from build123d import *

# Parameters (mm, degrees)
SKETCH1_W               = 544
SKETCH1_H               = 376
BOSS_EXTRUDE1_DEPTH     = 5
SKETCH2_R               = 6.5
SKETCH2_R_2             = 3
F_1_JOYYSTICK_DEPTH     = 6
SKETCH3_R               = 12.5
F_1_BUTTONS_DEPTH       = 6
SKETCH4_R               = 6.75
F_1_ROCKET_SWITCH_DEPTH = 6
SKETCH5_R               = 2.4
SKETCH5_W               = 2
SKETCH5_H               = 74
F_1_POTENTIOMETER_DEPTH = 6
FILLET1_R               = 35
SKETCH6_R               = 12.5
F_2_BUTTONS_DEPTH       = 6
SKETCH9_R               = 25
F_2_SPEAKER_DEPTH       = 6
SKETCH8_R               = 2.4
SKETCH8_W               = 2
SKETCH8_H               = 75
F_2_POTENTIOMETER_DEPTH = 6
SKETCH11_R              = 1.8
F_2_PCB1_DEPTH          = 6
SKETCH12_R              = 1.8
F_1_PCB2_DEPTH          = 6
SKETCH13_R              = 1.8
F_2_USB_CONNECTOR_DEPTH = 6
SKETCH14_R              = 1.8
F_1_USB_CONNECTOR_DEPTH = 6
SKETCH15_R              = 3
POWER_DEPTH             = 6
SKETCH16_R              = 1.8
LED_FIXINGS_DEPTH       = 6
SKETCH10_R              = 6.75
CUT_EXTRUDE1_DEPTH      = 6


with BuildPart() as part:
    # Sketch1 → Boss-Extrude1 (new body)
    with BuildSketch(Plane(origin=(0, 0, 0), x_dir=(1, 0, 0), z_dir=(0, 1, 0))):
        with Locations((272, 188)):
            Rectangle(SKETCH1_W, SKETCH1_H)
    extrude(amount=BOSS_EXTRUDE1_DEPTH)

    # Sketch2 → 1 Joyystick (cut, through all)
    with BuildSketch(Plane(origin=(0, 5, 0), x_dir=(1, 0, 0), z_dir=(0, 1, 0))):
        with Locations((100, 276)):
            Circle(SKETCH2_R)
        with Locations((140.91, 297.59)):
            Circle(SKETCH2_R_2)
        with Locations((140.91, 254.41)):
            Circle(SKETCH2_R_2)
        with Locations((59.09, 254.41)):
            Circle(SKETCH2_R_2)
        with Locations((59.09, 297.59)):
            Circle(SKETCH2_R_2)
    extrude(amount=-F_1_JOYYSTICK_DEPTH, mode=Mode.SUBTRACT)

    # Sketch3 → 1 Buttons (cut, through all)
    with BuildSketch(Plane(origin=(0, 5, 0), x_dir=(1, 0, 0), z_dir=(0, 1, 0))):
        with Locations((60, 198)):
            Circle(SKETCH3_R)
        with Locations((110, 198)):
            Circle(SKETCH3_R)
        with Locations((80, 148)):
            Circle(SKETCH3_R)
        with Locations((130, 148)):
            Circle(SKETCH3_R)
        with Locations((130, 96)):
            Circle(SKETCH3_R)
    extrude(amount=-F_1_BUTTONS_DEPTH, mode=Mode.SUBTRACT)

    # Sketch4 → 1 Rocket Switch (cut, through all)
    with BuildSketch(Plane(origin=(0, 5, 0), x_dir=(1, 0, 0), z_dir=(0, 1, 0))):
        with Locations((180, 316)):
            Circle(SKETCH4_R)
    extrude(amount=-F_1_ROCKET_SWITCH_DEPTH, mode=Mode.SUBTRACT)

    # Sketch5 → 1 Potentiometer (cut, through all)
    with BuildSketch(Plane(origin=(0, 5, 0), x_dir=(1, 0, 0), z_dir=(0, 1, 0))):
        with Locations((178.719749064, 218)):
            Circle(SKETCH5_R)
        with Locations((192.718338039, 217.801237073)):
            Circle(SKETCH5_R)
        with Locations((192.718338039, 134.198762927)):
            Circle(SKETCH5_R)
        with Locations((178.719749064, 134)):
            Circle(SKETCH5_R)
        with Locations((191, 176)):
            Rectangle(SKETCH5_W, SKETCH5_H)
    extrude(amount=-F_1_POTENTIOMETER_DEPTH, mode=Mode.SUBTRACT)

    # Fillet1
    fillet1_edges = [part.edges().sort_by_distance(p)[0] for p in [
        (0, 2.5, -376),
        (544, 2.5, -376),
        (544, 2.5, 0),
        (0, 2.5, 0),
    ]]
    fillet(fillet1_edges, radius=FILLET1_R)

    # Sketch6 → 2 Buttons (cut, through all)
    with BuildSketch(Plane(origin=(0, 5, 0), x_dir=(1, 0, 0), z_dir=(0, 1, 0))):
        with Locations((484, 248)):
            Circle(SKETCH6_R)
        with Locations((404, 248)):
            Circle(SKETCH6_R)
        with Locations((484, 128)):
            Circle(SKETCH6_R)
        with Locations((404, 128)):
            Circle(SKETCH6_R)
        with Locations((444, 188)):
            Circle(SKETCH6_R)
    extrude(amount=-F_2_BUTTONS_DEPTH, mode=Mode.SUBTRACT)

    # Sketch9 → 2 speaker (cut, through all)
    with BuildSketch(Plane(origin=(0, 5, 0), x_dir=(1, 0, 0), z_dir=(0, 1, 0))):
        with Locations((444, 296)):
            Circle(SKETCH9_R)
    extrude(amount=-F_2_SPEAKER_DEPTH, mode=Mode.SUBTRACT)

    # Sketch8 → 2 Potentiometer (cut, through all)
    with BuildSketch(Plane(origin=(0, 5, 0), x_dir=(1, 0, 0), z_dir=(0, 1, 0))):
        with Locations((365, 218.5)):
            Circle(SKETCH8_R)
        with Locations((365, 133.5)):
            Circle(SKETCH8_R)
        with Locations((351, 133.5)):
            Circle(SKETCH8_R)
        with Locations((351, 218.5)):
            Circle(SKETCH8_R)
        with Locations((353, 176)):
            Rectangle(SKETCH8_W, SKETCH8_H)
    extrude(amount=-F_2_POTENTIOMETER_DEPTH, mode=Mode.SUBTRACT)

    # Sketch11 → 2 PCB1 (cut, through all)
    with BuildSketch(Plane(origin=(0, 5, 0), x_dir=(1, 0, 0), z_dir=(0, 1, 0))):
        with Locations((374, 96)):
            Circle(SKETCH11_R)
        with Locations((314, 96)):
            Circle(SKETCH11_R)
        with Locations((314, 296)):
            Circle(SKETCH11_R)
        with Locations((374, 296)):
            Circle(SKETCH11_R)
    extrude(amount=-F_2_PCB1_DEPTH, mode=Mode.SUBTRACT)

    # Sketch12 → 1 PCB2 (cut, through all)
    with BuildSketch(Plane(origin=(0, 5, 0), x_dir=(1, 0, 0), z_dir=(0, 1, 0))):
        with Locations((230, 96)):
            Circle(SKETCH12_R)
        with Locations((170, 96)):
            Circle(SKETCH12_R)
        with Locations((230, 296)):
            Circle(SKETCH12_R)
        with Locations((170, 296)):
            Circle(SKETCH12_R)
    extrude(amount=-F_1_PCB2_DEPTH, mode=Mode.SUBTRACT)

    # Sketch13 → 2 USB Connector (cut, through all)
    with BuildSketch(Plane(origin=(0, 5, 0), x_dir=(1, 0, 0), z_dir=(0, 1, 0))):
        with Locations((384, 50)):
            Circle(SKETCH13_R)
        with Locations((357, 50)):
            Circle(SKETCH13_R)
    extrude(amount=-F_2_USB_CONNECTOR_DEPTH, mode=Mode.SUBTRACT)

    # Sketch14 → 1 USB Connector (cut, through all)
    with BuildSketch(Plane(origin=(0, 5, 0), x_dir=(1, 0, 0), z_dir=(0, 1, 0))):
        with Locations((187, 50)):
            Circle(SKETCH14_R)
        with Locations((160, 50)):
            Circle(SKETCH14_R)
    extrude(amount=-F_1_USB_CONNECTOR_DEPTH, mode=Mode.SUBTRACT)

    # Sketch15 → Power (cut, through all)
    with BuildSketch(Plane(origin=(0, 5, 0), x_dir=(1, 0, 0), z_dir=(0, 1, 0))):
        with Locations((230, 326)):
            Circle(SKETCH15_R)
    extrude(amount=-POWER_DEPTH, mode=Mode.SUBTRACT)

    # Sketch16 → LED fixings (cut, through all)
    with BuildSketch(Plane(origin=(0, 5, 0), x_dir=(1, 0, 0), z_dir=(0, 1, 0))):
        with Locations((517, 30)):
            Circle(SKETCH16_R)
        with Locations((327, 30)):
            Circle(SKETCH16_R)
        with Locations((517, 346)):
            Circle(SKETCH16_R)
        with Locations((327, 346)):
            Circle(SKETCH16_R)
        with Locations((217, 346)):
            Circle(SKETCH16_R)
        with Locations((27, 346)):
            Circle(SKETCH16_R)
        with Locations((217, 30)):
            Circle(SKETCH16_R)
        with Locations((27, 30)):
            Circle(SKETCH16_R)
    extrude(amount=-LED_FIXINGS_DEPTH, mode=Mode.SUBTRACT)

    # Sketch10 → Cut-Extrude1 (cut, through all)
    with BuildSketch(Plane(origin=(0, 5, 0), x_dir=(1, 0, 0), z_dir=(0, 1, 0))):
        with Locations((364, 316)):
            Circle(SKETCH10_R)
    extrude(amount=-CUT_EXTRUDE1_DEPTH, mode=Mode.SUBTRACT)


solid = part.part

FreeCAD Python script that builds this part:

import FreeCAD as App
import Part
import Sketcher

V = App.Vector
Q = App.Units.Quantity


def edges_at(feature, points):
    """Names of the edges that pass closest to the given points."""
    edges = feature.Shape.Edges
    near = lambda p: min(range(len(edges)), key=lambda i: edges[i].distToShape(Part.Vertex(*p))[0])
    return sorted({f"Edge{near(p) + 1}" for p in points})


def add_polygon(sketch, points):
    """Adds a closed chain of lines whose ends are joined by coincident constraints."""
    first, n = sketch.GeometryCount, len(points)
    for a, b in zip(points, points[1:] + points[:1]):
        sketch.addGeometry(Part.LineSegment(App.Vector(*a, 0), App.Vector(*b, 0)), False)
    for i in range(n):
        sketch.addConstraint(Sketcher.Constraint("Coincident", first + i, 2, first + (i + 1) % n, 1))

doc = App.newDocument("Part")
body = doc.addObject("PartDesign::Body", "Body")

sketch1 = body.newObject("Sketcher::SketchObject", "Sketch")
sketch1.AttachmentSupport = (doc.getObject("XZ_Plane"), [""])
sketch1.MapMode = "FlatFace"
add_polygon(sketch1, [(0, -376), (0, 0), (544, 0), (544, -376)])
sketch1.addConstraint([
    Sketcher.Constraint("Vertical", 0),
    Sketcher.Constraint("Horizontal", 1),
    Sketcher.Constraint("Vertical", 2),
    Sketcher.Constraint("Horizontal", 3),
    Sketcher.Constraint("Coincident", 0, 2, -1, 1),
    Sketcher.Constraint("DistanceX", 1, 1, 1, 2, Q("544 mm")),
    Sketcher.Constraint("DistanceY", 0, 1, 0, 2, Q("376 mm")),
])
pad1 = body.newObject("PartDesign::Pad", "Pad")
pad1.Profile = sketch1
pad1.Length = 5
pad1.Reversed = True

sketch2 = body.newObject("Sketcher::SketchObject", "Sketch001")
sketch2.AttachmentSupport = (doc.getObject("XZ_Plane"), [""])
sketch2.MapMode = "FlatFace"
sketch2.AttachmentOffset = App.Placement(V(0, 0, -5), App.Rotation())
sketch2.addGeometry([
    Part.Circle(V(100, -276, 0), V(0, 0, 1), 6.5),
    Part.Circle(V(140.9, -297.6, 0), V(0, 0, 1), 3),
    Part.Circle(V(140.9, -254.4, 0), V(0, 0, 1), 3),
    Part.Circle(V(59.1, -254.4, 0), V(0, 0, 1), 3),
    Part.Circle(V(59.1, -297.6, 0), V(0, 0, 1), 3),
], False)
sketch2.addConstraint([
    Sketcher.Constraint("Equal", 1, 2),
    Sketcher.Constraint("Equal", 2, 3),
    Sketcher.Constraint("Equal", 3, 4),
    Sketcher.Constraint("Horizontal", 2, 3, 3, 3),
    Sketcher.Constraint("Horizontal", 1, 3, 4, 3),
    Sketcher.Constraint("Vertical", 1, 3, 2, 3),
    Sketcher.Constraint("Vertical", 3, 3, 4, 3),
    Sketcher.Constraint("Diameter", 0, Q("13 mm")),
    Sketcher.Constraint("Diameter", 1, Q("6 mm")),
    Sketcher.Constraint("DistanceX", -1, 1, 0, 3, Q("100 mm")),
    Sketcher.Constraint("DistanceY", 0, 3, -1, 1, Q("276 mm")),
    Sketcher.Constraint("DistanceX", -1, 1, 1, 3, Q("140.91 mm")),
    Sketcher.Constraint("DistanceY", 1, 3, -1, 1, Q("297.59 mm")),
    Sketcher.Constraint("DistanceY", 2, 3, -1, 1, Q("254.41 mm")),
    Sketcher.Constraint("DistanceX", -1, 1, 3, 3, Q("59.09 mm")),
])
pocket1 = body.newObject("PartDesign::Pocket", "Pocket")
pocket1.Profile = sketch2
pocket1.Type = "ThroughAll"
pocket1.Reversed = True

sketch3 = body.newObject("Sketcher::SketchObject", "Sketch002")
sketch3.AttachmentSupport = (doc.getObject("XZ_Plane"), [""])
sketch3.MapMode = "FlatFace"
sketch3.AttachmentOffset = App.Placement(V(0, 0, -5), App.Rotation())
sketch3.addGeometry([
    Part.Circle(V(60, -198, 0), V(0, 0, 1), 12),
    Part.Circle(V(110, -198, 0), V(0, 0, 1), 12),
    Part.Circle(V(80, -148, 0), V(0, 0, 1), 12),
    Part.Circle(V(130, -148, 0), V(0, 0, 1), 12),
    Part.Circle(V(130, -96, 0), V(0, 0, 1), 12),
], False)
sketch3.addConstraint([
    Sketcher.Constraint("Equal", 0, 1),
    Sketcher.Constraint("Equal", 1, 2),
    Sketcher.Constraint("Equal", 2, 3),
    Sketcher.Constraint("Equal", 3, 4),
    Sketcher.Constraint("Horizontal", 0, 3, 1, 3),
    Sketcher.Constraint("Horizontal", 2, 3, 3, 3),
    Sketcher.Constraint("Vertical", 3, 3, 4, 3),
    Sketcher.Constraint("Diameter", 0, Q("25 mm")),
    Sketcher.Constraint("DistanceX", -1, 1, 0, 3, Q("60 mm")),
    Sketcher.Constraint("DistanceY", 0, 3, -1, 1, Q("198 mm")),
    Sketcher.Constraint("DistanceX", -1, 1, 1, 3, Q("110 mm")),
    Sketcher.Constraint("DistanceX", -1, 1, 2, 3, Q("80 mm")),
    Sketcher.Constraint("DistanceY", 2, 3, -1, 1, Q("148 mm")),
    Sketcher.Constraint("DistanceX", -1, 1, 3, 3, Q("130 mm")),
    Sketcher.Constraint("DistanceY", 4, 3, -1, 1, Q("96 mm")),
])
pocket2 = body.newObject("PartDesign::Pocket", "Pocket001")
pocket2.Profile = sketch3
pocket2.Type = "ThroughAll"
pocket2.Reversed = True

sketch4 = body.newObject("Sketcher::SketchObject", "Sketch003")
sketch4.AttachmentSupport = (doc.getObject("XZ_Plane"), [""])
sketch4.MapMode = "FlatFace"
sketch4.AttachmentOffset = App.Placement(V(0, 0, -5), App.Rotation())
sketch4.addGeometry(Part.Circle(V(180, -316, 0), V(0, 0, 1), 7), False)
sketch4.addConstraint([
    Sketcher.Constraint("Diameter", 0, Q("13.5 mm")),
    Sketcher.Constraint("DistanceX", -1, 1, 0, 3, Q("180 mm")),
    Sketcher.Constraint("DistanceY", 0, 3, -1, 1, Q("316 mm")),
])
pocket3 = body.newObject("PartDesign::Pocket", "Pocket002")
pocket3.Profile = sketch4
pocket3.Type = "ThroughAll"
pocket3.Reversed = True

sketch5 = body.newObject("Sketcher::SketchObject", "Sketch004")
sketch5.AttachmentSupport = (doc.getObject("XZ_Plane"), [""])
sketch5.MapMode = "FlatFace"
sketch5.AttachmentOffset = App.Placement(V(0, 0, -5), App.Rotation())
sketch5.addGeometry(Part.Circle(V(178.7, -218, 0), V(0, 0, 1), 2.4), False)
sketch5.addGeometry(Part.Circle(V(192.7, -217.8, 0), V(0, 0, 1), 2.4), False)
sketch5.addGeometry(Part.Circle(V(192.7, -134.2, 0), V(0, 0, 1), 2.4), False)
sketch5.addGeometry(Part.Circle(V(178.7, -134, 0), V(0, 0, 1), 2.4), False)
add_polygon(sketch5, [(190, -213), (190, -139), (192, -139), (192, -213)])
sketch5.addConstraint([
    Sketcher.Constraint("Vertical", 4),
    Sketcher.Constraint("Horizontal", 5),
    Sketcher.Constraint("Vertical", 6),
    Sketcher.Constraint("Horizontal", 7),
    Sketcher.Constraint("Equal", 0, 1),
    Sketcher.Constraint("Equal", 1, 2),
    Sketcher.Constraint("Equal", 2, 3),
    Sketcher.Constraint("Vertical", 1, 3, 2, 3),
    Sketcher.Constraint("Vertical", 0, 3, 3, 3),
    Sketcher.Constraint("Diameter", 0, Q("4.8 mm")),
    Sketcher.Constraint("DistanceX", 5, 1, 5, 2, Q("2 mm")),
    Sketcher.Constraint("DistanceY", 4, 1, 4, 2, Q("74 mm")),
    Sketcher.Constraint("DistanceY", 0, 3, -1, 1, Q("218 mm")),
    Sketcher.Constraint("DistanceY", 3, 3, -1, 1, Q("134 mm")),
    Sketcher.Constraint("DistanceX", -1, 1, 4, 2, Q("190 mm")),
    Sketcher.Constraint("DistanceY", 4, 2, -1, 1, Q("139 mm")),
    Sketcher.Constraint("DistanceX", -1, 1, 0, 3, Q("178.719749 mm")),
    Sketcher.Constraint("DistanceX", -1, 1, 1, 3, Q("192.718338 mm")),
    Sketcher.Constraint("DistanceY", 1, 3, -1, 1, Q("217.801237 mm")),
    Sketcher.Constraint("DistanceY", 2, 3, -1, 1, Q("134.198763 mm")),
])
pocket4 = body.newObject("PartDesign::Pocket", "Pocket003")
pocket4.Profile = sketch5
pocket4.Type = "ThroughAll"
pocket4.Reversed = True
doc.recompute()

fillet = body.newObject("PartDesign::Fillet", "Fillet")
fillet.Base = (pocket4, edges_at(pocket4, [
    (0, 2.5, -376),
    (544, 2.5, -376),
    (544, 2.5, 0),
    (0, 2.5, 0),
]))
fillet.Radius = 35

sketch6 = body.newObject("Sketcher::SketchObject", "Sketch005")
sketch6.AttachmentSupport = (doc.getObject("XZ_Plane"), [""])
sketch6.MapMode = "FlatFace"
sketch6.AttachmentOffset = App.Placement(V(0, 0, -5), App.Rotation())
sketch6.addGeometry([
    Part.Circle(V(484, -248, 0), V(0, 0, 1), 12),
    Part.Circle(V(404, -248, 0), V(0, 0, 1), 12),
    Part.Circle(V(484, -128, 0), V(0, 0, 1), 12),
    Part.Circle(V(404, -128, 0), V(0, 0, 1), 12),
    Part.Circle(V(444, -188, 0), V(0, 0, 1), 12),
], False)
sketch6.addConstraint([
    Sketcher.Constraint("Equal", 0, 1),
    Sketcher.Constraint("Equal", 1, 2),
    Sketcher.Constraint("Equal", 2, 3),
    Sketcher.Constraint("Equal", 3, 4),
    Sketcher.Constraint("Horizontal", 0, 3, 1, 3),
    Sketcher.Constraint("Horizontal", 2, 3, 3, 3),
    Sketcher.Constraint("Vertical", 0, 3, 2, 3),
    Sketcher.Constraint("Vertical", 1, 3, 3, 3),
    Sketcher.Constraint("Diameter", 0, Q("25 mm")),
    Sketcher.Constraint("DistanceX", -1, 1, 0, 3, Q("484 mm")),
    Sketcher.Constraint("DistanceY", 0, 3, -1, 1, Q("248 mm")),
    Sketcher.Constraint("DistanceX", -1, 1, 1, 3, Q("404 mm")),
    Sketcher.Constraint("DistanceY", 2, 3, -1, 1, Q("128 mm")),
    Sketcher.Constraint("DistanceX", -1, 1, 4, 3, Q("444 mm")),
    Sketcher.Constraint("DistanceY", 4, 3, -1, 1, Q("188 mm")),
])
pocket5 = body.newObject("PartDesign::Pocket", "Pocket004")
pocket5.Profile = sketch6
pocket5.Type = "ThroughAll"
pocket5.Reversed = True

sketch7 = body.newObject("Sketcher::SketchObject", "Sketch006")
sketch7.AttachmentSupport = (doc.getObject("XZ_Plane"), [""])
sketch7.MapMode = "FlatFace"
sketch7.AttachmentOffset = App.Placement(V(0, 0, -5), App.Rotation())
sketch7.addGeometry(Part.Circle(V(444, -296, 0), V(0, 0, 1), 25), False)
sketch7.addConstraint([
    Sketcher.Constraint("Diameter", 0, Q("50 mm")),
    Sketcher.Constraint("DistanceX", -1, 1, 0, 3, Q("444 mm")),
    Sketcher.Constraint("DistanceY", 0, 3, -1, 1, Q("296 mm")),
])
pocket6 = body.newObject("PartDesign::Pocket", "Pocket005")
pocket6.Profile = sketch7
pocket6.Type = "ThroughAll"
pocket6.Reversed = True

sketch8 = body.newObject("Sketcher::SketchObject", "Sketch007")
sketch8.AttachmentSupport = (doc.getObject("XZ_Plane"), [""])
sketch8.MapMode = "FlatFace"
sketch8.AttachmentOffset = App.Placement(V(0, 0, -5), App.Rotation())
sketch8.addGeometry(Part.Circle(V(365, -218.5, 0), V(0, 0, 1), 2.4), False)
sketch8.addGeometry(Part.Circle(V(365, -133.5, 0), V(0, 0, 1), 2.4), False)
sketch8.addGeometry(Part.Circle(V(351, -133.5, 0), V(0, 0, 1), 2.4), False)
sketch8.addGeometry(Part.Circle(V(351, -218.5, 0), V(0, 0, 1), 2.4), False)
add_polygon(sketch8, [(352, -213.5), (352, -138.5), (354, -138.5), (354, -213.5)])
sketch8.addConstraint([
    Sketcher.Constraint("Vertical", 4),
    Sketcher.Constraint("Horizontal", 5),
    Sketcher.Constraint("Vertical", 6),
    Sketcher.Constraint("Horizontal", 7),
    Sketcher.Constraint("Equal", 0, 1),
    Sketcher.Constraint("Equal", 1, 2),
    Sketcher.Constraint("Equal", 2, 3),
    Sketcher.Constraint("Horizontal", 1, 3, 2, 3),
    Sketcher.Constraint("Horizontal", 0, 3, 3, 3),
    Sketcher.Constraint("Vertical", 0, 3, 1, 3),
    Sketcher.Constraint("Vertical", 2, 3, 3, 3),
    Sketcher.Constraint("Diameter", 0, Q("4.8 mm")),
    Sketcher.Constraint("DistanceX", 5, 1, 5, 2, Q("2 mm")),
    Sketcher.Constraint("DistanceY", 4, 1, 4, 2, Q("75 mm")),
    Sketcher.Constraint("DistanceX", -1, 1, 0, 3, Q("365 mm")),
    Sketcher.Constraint("DistanceX", -1, 1, 2, 3, Q("351 mm")),
    Sketcher.Constraint("DistanceX", -1, 1, 4, 2, Q("352 mm")),
    Sketcher.Constraint("DistanceY", 0, 3, 1, 3, Q("85 mm")),
    Sketcher.Constraint("DistanceY", 4, 2, 2, 3, Q("5 mm")),
    Sketcher.Constraint("DistanceY", 0, 3, -1, 1, Q("218.5 mm")),
])
pocket7 = body.newObject("PartDesign::Pocket", "Pocket006")
pocket7.Profile = sketch8
pocket7.Type = "ThroughAll"
pocket7.Reversed = True

sketch9 = body.newObject("Sketcher::SketchObject", "Sketch008")
sketch9.AttachmentSupport = (doc.getObject("XZ_Plane"), [""])
sketch9.MapMode = "FlatFace"
sketch9.AttachmentOffset = App.Placement(V(0, 0, -5), App.Rotation())
sketch9.addGeometry([
    Part.Circle(V(374, -96, 0), V(0, 0, 1), 1.8),
    Part.Circle(V(314, -96, 0), V(0, 0, 1), 1.8),
    Part.Circle(V(314, -296, 0), V(0, 0, 1), 1.8),
    Part.Circle(V(374, -296, 0), V(0, 0, 1), 1.8),
], False)
sketch9.addConstraint([
    Sketcher.Constraint("Equal", 0, 1),
    Sketcher.Constraint("Equal", 1, 2),
    Sketcher.Constraint("Equal", 2, 3),
    Sketcher.Constraint("Horizontal", 0, 3, 1, 3),
    Sketcher.Constraint("Horizontal", 2, 3, 3, 3),
    Sketcher.Constraint("Vertical", 1, 3, 2, 3),
    Sketcher.Constraint("Vertical", 0, 3, 3, 3),
    Sketcher.Constraint("Diameter", 0, Q("3.6 mm")),
    Sketcher.Constraint("DistanceX", -1, 1, 0, 3, Q("374 mm")),
    Sketcher.Constraint("DistanceY", 0, 3, -1, 1, Q("96 mm")),
    Sketcher.Constraint("DistanceX", -1, 1, 1, 3, Q("314 mm")),
    Sketcher.Constraint("DistanceY", 2, 3, -1, 1, Q("296 mm")),
])
pocket8 = body.newObject("PartDesign::Pocket", "Pocket007")
pocket8.Profile = sketch9
pocket8.Type = "ThroughAll"
pocket8.Reversed = True

sketch10 = body.newObject("Sketcher::SketchObject", "Sketch009")
sketch10.AttachmentSupport = (doc.getObject("XZ_Plane"), [""])
sketch10.MapMode = "FlatFace"
sketch10.AttachmentOffset = App.Placement(V(0, 0, -5), App.Rotation())
sketch10.addGeometry([
    Part.Circle(V(230, -96, 0), V(0, 0, 1), 1.8),
    Part.Circle(V(170, -96, 0), V(0, 0, 1), 1.8),
    Part.Circle(V(230, -296, 0), V(0, 0, 1), 1.8),
    Part.Circle(V(170, -296, 0), V(0, 0, 1), 1.8),
], False)
sketch10.addConstraint([
    Sketcher.Constraint("Equal", 0, 1),
    Sketcher.Constraint("Equal", 1, 2),
    Sketcher.Constraint("Equal", 2, 3),
    Sketcher.Constraint("Horizontal", 0, 3, 1, 3),
    Sketcher.Constraint("Horizontal", 2, 3, 3, 3),
    Sketcher.Constraint("Vertical", 0, 3, 2, 3),
    Sketcher.Constraint("Vertical", 1, 3, 3, 3),
    Sketcher.Constraint("Diameter", 0, Q("3.6 mm")),
    Sketcher.Constraint("DistanceX", -1, 1, 0, 3, Q("230 mm")),
    Sketcher.Constraint("DistanceY", 0, 3, -1, 1, Q("96 mm")),
    Sketcher.Constraint("DistanceX", -1, 1, 1, 3, Q("170 mm")),
    Sketcher.Constraint("DistanceY", 2, 3, -1, 1, Q("296 mm")),
])
pocket9 = body.newObject("PartDesign::Pocket", "Pocket008")
pocket9.Profile = sketch10
pocket9.Type = "ThroughAll"
pocket9.Reversed = True

sketch11 = body.newObject("Sketcher::SketchObject", "Sketch010")
sketch11.AttachmentSupport = (doc.getObject("XZ_Plane"), [""])
sketch11.MapMode = "FlatFace"
sketch11.AttachmentOffset = App.Placement(V(0, 0, -5), App.Rotation())
sketch11.addGeometry([
    Part.Circle(V(384, -50, 0), V(0, 0, 1), 1.8),
    Part.Circle(V(357, -50, 0), V(0, 0, 1), 1.8),
], False)
sketch11.addConstraint([
    Sketcher.Constraint("Equal", 0, 1),
    Sketcher.Constraint("Horizontal", 0, 3, 1, 3),
    Sketcher.Constraint("Diameter", 0, Q("3.6 mm")),
    Sketcher.Constraint("DistanceX", -1, 1, 0, 3, Q("384 mm")),
    Sketcher.Constraint("DistanceY", 0, 3, -1, 1, Q("50 mm")),
    Sketcher.Constraint("DistanceX", -1, 1, 1, 3, Q("357 mm")),
])
pocket10 = body.newObject("PartDesign::Pocket", "Pocket009")
pocket10.Profile = sketch11
pocket10.Type = "ThroughAll"
pocket10.Reversed = True

sketch12 = body.newObject("Sketcher::SketchObject", "Sketch011")
sketch12.AttachmentSupport = (doc.getObject("XZ_Plane"), [""])
sketch12.MapMode = "FlatFace"
sketch12.AttachmentOffset = App.Placement(V(0, 0, -5), App.Rotation())
sketch12.addGeometry([
    Part.Circle(V(187, -50, 0), V(0, 0, 1), 1.8),
    Part.Circle(V(160, -50, 0), V(0, 0, 1), 1.8),
], False)
sketch12.addConstraint([
    Sketcher.Constraint("Equal", 0, 1),
    Sketcher.Constraint("Horizontal", 0, 3, 1, 3),
    Sketcher.Constraint("Diameter", 0, Q("3.6 mm")),
    Sketcher.Constraint("DistanceX", -1, 1, 0, 3, Q("187 mm")),
    Sketcher.Constraint("DistanceY", 0, 3, -1, 1, Q("50 mm")),
    Sketcher.Constraint("DistanceX", -1, 1, 1, 3, Q("160 mm")),
])
pocket11 = body.newObject("PartDesign::Pocket", "Pocket010")
pocket11.Profile = sketch12
pocket11.Type = "ThroughAll"
pocket11.Reversed = True

sketch13 = body.newObject("Sketcher::SketchObject", "Sketch012")
sketch13.AttachmentSupport = (doc.getObject("XZ_Plane"), [""])
sketch13.MapMode = "FlatFace"
sketch13.AttachmentOffset = App.Placement(V(0, 0, -5), App.Rotation())
sketch13.addGeometry(Part.Circle(V(230, -326, 0), V(0, 0, 1), 3), False)
sketch13.addConstraint([
    Sketcher.Constraint("Diameter", 0, Q("6 mm")),
    Sketcher.Constraint("DistanceX", -1, 1, 0, 3, Q("230 mm")),
    Sketcher.Constraint("DistanceY", 0, 3, -1, 1, Q("326 mm")),
])
pocket12 = body.newObject("PartDesign::Pocket", "Pocket011")
pocket12.Profile = sketch13
pocket12.Type = "ThroughAll"
pocket12.Reversed = True

sketch14 = body.newObject("Sketcher::SketchObject", "Sketch013")
sketch14.AttachmentSupport = (doc.getObject("XZ_Plane"), [""])
sketch14.MapMode = "FlatFace"
sketch14.AttachmentOffset = App.Placement(V(0, 0, -5), App.Rotation())
sketch14.addGeometry([
    Part.Circle(V(517, -30, 0), V(0, 0, 1), 1.8),
    Part.Circle(V(327, -30, 0), V(0, 0, 1), 1.8),
    Part.Circle(V(517, -346, 0), V(0, 0, 1), 1.8),
    Part.Circle(V(327, -346, 0), V(0, 0, 1), 1.8),
    Part.Circle(V(217, -346, 0), V(0, 0, 1), 1.8),
    Part.Circle(V(27, -346, 0), V(0, 0, 1), 1.8),
    Part.Circle(V(217, -30, 0), V(0, 0, 1), 1.8),
    Part.Circle(V(27, -30, 0), V(0, 0, 1), 1.8),
], False)
sketch14.addConstraint([
    Sketcher.Constraint("Equal", 0, 1),
    Sketcher.Constraint("Equal", 1, 2),
    Sketcher.Constraint("Equal", 2, 3),
    Sketcher.Constraint("Equal", 3, 4),
    Sketcher.Constraint("Equal", 4, 5),
    Sketcher.Constraint("Equal", 5, 6),
    Sketcher.Constraint("Equal", 6, 7),
    Sketcher.Constraint("Horizontal", 0, 3, 1, 3),
    Sketcher.Constraint("Horizontal", 2, 3, 3, 3),
    Sketcher.Constraint("Horizontal", 3, 3, 4, 3),
    Sketcher.Constraint("Horizontal", 4, 3, 5, 3),
    Sketcher.Constraint("Horizontal", 1, 3, 6, 3),
    Sketcher.Constraint("Horizontal", 6, 3, 7, 3),
    Sketcher.Constraint("Vertical", 0, 3, 2, 3),
    Sketcher.Constraint("Vertical", 1, 3, 3, 3),
    Sketcher.Constraint("Vertical", 4, 3, 6, 3),
    Sketcher.Constraint("Vertical", 5, 3, 7, 3),
    Sketcher.Constraint("Diameter", 0, Q("3.6 mm")),
    Sketcher.Constraint("DistanceX", -1, 1, 0, 3, Q("517 mm")),
    Sketcher.Constraint("DistanceY", 0, 3, -1, 1, Q("30 mm")),
    Sketcher.Constraint("DistanceX", -1, 1, 1, 3, Q("327 mm")),
    Sketcher.Constraint("DistanceY", 2, 3, -1, 1, Q("346 mm")),
    Sketcher.Constraint("DistanceX", -1, 1, 4, 3, Q("217 mm")),
    Sketcher.Constraint("DistanceX", -1, 1, 5, 3, Q("27 mm")),
])
pocket13 = body.newObject("PartDesign::Pocket", "Pocket012")
pocket13.Profile = sketch14
pocket13.Type = "ThroughAll"
pocket13.Reversed = True

sketch15 = body.newObject("Sketcher::SketchObject", "Sketch014")
sketch15.AttachmentSupport = (doc.getObject("XZ_Plane"), [""])
sketch15.MapMode = "FlatFace"
sketch15.AttachmentOffset = App.Placement(V(0, 0, -5), App.Rotation())
sketch15.addGeometry(Part.Circle(V(364, -316, 0), V(0, 0, 1), 7), False)
sketch15.addConstraint([
    Sketcher.Constraint("Diameter", 0, Q("13.5 mm")),
    Sketcher.Constraint("DistanceX", -1, 1, 0, 3, Q("364 mm")),
    Sketcher.Constraint("DistanceY", 0, 3, -1, 1, Q("316 mm")),
])
pocket14 = body.newObject("PartDesign::Pocket", "Pocket013")
pocket14.Profile = sketch15
pocket14.Type = "ThroughAll"
pocket14.Reversed = True

doc.recompute()
